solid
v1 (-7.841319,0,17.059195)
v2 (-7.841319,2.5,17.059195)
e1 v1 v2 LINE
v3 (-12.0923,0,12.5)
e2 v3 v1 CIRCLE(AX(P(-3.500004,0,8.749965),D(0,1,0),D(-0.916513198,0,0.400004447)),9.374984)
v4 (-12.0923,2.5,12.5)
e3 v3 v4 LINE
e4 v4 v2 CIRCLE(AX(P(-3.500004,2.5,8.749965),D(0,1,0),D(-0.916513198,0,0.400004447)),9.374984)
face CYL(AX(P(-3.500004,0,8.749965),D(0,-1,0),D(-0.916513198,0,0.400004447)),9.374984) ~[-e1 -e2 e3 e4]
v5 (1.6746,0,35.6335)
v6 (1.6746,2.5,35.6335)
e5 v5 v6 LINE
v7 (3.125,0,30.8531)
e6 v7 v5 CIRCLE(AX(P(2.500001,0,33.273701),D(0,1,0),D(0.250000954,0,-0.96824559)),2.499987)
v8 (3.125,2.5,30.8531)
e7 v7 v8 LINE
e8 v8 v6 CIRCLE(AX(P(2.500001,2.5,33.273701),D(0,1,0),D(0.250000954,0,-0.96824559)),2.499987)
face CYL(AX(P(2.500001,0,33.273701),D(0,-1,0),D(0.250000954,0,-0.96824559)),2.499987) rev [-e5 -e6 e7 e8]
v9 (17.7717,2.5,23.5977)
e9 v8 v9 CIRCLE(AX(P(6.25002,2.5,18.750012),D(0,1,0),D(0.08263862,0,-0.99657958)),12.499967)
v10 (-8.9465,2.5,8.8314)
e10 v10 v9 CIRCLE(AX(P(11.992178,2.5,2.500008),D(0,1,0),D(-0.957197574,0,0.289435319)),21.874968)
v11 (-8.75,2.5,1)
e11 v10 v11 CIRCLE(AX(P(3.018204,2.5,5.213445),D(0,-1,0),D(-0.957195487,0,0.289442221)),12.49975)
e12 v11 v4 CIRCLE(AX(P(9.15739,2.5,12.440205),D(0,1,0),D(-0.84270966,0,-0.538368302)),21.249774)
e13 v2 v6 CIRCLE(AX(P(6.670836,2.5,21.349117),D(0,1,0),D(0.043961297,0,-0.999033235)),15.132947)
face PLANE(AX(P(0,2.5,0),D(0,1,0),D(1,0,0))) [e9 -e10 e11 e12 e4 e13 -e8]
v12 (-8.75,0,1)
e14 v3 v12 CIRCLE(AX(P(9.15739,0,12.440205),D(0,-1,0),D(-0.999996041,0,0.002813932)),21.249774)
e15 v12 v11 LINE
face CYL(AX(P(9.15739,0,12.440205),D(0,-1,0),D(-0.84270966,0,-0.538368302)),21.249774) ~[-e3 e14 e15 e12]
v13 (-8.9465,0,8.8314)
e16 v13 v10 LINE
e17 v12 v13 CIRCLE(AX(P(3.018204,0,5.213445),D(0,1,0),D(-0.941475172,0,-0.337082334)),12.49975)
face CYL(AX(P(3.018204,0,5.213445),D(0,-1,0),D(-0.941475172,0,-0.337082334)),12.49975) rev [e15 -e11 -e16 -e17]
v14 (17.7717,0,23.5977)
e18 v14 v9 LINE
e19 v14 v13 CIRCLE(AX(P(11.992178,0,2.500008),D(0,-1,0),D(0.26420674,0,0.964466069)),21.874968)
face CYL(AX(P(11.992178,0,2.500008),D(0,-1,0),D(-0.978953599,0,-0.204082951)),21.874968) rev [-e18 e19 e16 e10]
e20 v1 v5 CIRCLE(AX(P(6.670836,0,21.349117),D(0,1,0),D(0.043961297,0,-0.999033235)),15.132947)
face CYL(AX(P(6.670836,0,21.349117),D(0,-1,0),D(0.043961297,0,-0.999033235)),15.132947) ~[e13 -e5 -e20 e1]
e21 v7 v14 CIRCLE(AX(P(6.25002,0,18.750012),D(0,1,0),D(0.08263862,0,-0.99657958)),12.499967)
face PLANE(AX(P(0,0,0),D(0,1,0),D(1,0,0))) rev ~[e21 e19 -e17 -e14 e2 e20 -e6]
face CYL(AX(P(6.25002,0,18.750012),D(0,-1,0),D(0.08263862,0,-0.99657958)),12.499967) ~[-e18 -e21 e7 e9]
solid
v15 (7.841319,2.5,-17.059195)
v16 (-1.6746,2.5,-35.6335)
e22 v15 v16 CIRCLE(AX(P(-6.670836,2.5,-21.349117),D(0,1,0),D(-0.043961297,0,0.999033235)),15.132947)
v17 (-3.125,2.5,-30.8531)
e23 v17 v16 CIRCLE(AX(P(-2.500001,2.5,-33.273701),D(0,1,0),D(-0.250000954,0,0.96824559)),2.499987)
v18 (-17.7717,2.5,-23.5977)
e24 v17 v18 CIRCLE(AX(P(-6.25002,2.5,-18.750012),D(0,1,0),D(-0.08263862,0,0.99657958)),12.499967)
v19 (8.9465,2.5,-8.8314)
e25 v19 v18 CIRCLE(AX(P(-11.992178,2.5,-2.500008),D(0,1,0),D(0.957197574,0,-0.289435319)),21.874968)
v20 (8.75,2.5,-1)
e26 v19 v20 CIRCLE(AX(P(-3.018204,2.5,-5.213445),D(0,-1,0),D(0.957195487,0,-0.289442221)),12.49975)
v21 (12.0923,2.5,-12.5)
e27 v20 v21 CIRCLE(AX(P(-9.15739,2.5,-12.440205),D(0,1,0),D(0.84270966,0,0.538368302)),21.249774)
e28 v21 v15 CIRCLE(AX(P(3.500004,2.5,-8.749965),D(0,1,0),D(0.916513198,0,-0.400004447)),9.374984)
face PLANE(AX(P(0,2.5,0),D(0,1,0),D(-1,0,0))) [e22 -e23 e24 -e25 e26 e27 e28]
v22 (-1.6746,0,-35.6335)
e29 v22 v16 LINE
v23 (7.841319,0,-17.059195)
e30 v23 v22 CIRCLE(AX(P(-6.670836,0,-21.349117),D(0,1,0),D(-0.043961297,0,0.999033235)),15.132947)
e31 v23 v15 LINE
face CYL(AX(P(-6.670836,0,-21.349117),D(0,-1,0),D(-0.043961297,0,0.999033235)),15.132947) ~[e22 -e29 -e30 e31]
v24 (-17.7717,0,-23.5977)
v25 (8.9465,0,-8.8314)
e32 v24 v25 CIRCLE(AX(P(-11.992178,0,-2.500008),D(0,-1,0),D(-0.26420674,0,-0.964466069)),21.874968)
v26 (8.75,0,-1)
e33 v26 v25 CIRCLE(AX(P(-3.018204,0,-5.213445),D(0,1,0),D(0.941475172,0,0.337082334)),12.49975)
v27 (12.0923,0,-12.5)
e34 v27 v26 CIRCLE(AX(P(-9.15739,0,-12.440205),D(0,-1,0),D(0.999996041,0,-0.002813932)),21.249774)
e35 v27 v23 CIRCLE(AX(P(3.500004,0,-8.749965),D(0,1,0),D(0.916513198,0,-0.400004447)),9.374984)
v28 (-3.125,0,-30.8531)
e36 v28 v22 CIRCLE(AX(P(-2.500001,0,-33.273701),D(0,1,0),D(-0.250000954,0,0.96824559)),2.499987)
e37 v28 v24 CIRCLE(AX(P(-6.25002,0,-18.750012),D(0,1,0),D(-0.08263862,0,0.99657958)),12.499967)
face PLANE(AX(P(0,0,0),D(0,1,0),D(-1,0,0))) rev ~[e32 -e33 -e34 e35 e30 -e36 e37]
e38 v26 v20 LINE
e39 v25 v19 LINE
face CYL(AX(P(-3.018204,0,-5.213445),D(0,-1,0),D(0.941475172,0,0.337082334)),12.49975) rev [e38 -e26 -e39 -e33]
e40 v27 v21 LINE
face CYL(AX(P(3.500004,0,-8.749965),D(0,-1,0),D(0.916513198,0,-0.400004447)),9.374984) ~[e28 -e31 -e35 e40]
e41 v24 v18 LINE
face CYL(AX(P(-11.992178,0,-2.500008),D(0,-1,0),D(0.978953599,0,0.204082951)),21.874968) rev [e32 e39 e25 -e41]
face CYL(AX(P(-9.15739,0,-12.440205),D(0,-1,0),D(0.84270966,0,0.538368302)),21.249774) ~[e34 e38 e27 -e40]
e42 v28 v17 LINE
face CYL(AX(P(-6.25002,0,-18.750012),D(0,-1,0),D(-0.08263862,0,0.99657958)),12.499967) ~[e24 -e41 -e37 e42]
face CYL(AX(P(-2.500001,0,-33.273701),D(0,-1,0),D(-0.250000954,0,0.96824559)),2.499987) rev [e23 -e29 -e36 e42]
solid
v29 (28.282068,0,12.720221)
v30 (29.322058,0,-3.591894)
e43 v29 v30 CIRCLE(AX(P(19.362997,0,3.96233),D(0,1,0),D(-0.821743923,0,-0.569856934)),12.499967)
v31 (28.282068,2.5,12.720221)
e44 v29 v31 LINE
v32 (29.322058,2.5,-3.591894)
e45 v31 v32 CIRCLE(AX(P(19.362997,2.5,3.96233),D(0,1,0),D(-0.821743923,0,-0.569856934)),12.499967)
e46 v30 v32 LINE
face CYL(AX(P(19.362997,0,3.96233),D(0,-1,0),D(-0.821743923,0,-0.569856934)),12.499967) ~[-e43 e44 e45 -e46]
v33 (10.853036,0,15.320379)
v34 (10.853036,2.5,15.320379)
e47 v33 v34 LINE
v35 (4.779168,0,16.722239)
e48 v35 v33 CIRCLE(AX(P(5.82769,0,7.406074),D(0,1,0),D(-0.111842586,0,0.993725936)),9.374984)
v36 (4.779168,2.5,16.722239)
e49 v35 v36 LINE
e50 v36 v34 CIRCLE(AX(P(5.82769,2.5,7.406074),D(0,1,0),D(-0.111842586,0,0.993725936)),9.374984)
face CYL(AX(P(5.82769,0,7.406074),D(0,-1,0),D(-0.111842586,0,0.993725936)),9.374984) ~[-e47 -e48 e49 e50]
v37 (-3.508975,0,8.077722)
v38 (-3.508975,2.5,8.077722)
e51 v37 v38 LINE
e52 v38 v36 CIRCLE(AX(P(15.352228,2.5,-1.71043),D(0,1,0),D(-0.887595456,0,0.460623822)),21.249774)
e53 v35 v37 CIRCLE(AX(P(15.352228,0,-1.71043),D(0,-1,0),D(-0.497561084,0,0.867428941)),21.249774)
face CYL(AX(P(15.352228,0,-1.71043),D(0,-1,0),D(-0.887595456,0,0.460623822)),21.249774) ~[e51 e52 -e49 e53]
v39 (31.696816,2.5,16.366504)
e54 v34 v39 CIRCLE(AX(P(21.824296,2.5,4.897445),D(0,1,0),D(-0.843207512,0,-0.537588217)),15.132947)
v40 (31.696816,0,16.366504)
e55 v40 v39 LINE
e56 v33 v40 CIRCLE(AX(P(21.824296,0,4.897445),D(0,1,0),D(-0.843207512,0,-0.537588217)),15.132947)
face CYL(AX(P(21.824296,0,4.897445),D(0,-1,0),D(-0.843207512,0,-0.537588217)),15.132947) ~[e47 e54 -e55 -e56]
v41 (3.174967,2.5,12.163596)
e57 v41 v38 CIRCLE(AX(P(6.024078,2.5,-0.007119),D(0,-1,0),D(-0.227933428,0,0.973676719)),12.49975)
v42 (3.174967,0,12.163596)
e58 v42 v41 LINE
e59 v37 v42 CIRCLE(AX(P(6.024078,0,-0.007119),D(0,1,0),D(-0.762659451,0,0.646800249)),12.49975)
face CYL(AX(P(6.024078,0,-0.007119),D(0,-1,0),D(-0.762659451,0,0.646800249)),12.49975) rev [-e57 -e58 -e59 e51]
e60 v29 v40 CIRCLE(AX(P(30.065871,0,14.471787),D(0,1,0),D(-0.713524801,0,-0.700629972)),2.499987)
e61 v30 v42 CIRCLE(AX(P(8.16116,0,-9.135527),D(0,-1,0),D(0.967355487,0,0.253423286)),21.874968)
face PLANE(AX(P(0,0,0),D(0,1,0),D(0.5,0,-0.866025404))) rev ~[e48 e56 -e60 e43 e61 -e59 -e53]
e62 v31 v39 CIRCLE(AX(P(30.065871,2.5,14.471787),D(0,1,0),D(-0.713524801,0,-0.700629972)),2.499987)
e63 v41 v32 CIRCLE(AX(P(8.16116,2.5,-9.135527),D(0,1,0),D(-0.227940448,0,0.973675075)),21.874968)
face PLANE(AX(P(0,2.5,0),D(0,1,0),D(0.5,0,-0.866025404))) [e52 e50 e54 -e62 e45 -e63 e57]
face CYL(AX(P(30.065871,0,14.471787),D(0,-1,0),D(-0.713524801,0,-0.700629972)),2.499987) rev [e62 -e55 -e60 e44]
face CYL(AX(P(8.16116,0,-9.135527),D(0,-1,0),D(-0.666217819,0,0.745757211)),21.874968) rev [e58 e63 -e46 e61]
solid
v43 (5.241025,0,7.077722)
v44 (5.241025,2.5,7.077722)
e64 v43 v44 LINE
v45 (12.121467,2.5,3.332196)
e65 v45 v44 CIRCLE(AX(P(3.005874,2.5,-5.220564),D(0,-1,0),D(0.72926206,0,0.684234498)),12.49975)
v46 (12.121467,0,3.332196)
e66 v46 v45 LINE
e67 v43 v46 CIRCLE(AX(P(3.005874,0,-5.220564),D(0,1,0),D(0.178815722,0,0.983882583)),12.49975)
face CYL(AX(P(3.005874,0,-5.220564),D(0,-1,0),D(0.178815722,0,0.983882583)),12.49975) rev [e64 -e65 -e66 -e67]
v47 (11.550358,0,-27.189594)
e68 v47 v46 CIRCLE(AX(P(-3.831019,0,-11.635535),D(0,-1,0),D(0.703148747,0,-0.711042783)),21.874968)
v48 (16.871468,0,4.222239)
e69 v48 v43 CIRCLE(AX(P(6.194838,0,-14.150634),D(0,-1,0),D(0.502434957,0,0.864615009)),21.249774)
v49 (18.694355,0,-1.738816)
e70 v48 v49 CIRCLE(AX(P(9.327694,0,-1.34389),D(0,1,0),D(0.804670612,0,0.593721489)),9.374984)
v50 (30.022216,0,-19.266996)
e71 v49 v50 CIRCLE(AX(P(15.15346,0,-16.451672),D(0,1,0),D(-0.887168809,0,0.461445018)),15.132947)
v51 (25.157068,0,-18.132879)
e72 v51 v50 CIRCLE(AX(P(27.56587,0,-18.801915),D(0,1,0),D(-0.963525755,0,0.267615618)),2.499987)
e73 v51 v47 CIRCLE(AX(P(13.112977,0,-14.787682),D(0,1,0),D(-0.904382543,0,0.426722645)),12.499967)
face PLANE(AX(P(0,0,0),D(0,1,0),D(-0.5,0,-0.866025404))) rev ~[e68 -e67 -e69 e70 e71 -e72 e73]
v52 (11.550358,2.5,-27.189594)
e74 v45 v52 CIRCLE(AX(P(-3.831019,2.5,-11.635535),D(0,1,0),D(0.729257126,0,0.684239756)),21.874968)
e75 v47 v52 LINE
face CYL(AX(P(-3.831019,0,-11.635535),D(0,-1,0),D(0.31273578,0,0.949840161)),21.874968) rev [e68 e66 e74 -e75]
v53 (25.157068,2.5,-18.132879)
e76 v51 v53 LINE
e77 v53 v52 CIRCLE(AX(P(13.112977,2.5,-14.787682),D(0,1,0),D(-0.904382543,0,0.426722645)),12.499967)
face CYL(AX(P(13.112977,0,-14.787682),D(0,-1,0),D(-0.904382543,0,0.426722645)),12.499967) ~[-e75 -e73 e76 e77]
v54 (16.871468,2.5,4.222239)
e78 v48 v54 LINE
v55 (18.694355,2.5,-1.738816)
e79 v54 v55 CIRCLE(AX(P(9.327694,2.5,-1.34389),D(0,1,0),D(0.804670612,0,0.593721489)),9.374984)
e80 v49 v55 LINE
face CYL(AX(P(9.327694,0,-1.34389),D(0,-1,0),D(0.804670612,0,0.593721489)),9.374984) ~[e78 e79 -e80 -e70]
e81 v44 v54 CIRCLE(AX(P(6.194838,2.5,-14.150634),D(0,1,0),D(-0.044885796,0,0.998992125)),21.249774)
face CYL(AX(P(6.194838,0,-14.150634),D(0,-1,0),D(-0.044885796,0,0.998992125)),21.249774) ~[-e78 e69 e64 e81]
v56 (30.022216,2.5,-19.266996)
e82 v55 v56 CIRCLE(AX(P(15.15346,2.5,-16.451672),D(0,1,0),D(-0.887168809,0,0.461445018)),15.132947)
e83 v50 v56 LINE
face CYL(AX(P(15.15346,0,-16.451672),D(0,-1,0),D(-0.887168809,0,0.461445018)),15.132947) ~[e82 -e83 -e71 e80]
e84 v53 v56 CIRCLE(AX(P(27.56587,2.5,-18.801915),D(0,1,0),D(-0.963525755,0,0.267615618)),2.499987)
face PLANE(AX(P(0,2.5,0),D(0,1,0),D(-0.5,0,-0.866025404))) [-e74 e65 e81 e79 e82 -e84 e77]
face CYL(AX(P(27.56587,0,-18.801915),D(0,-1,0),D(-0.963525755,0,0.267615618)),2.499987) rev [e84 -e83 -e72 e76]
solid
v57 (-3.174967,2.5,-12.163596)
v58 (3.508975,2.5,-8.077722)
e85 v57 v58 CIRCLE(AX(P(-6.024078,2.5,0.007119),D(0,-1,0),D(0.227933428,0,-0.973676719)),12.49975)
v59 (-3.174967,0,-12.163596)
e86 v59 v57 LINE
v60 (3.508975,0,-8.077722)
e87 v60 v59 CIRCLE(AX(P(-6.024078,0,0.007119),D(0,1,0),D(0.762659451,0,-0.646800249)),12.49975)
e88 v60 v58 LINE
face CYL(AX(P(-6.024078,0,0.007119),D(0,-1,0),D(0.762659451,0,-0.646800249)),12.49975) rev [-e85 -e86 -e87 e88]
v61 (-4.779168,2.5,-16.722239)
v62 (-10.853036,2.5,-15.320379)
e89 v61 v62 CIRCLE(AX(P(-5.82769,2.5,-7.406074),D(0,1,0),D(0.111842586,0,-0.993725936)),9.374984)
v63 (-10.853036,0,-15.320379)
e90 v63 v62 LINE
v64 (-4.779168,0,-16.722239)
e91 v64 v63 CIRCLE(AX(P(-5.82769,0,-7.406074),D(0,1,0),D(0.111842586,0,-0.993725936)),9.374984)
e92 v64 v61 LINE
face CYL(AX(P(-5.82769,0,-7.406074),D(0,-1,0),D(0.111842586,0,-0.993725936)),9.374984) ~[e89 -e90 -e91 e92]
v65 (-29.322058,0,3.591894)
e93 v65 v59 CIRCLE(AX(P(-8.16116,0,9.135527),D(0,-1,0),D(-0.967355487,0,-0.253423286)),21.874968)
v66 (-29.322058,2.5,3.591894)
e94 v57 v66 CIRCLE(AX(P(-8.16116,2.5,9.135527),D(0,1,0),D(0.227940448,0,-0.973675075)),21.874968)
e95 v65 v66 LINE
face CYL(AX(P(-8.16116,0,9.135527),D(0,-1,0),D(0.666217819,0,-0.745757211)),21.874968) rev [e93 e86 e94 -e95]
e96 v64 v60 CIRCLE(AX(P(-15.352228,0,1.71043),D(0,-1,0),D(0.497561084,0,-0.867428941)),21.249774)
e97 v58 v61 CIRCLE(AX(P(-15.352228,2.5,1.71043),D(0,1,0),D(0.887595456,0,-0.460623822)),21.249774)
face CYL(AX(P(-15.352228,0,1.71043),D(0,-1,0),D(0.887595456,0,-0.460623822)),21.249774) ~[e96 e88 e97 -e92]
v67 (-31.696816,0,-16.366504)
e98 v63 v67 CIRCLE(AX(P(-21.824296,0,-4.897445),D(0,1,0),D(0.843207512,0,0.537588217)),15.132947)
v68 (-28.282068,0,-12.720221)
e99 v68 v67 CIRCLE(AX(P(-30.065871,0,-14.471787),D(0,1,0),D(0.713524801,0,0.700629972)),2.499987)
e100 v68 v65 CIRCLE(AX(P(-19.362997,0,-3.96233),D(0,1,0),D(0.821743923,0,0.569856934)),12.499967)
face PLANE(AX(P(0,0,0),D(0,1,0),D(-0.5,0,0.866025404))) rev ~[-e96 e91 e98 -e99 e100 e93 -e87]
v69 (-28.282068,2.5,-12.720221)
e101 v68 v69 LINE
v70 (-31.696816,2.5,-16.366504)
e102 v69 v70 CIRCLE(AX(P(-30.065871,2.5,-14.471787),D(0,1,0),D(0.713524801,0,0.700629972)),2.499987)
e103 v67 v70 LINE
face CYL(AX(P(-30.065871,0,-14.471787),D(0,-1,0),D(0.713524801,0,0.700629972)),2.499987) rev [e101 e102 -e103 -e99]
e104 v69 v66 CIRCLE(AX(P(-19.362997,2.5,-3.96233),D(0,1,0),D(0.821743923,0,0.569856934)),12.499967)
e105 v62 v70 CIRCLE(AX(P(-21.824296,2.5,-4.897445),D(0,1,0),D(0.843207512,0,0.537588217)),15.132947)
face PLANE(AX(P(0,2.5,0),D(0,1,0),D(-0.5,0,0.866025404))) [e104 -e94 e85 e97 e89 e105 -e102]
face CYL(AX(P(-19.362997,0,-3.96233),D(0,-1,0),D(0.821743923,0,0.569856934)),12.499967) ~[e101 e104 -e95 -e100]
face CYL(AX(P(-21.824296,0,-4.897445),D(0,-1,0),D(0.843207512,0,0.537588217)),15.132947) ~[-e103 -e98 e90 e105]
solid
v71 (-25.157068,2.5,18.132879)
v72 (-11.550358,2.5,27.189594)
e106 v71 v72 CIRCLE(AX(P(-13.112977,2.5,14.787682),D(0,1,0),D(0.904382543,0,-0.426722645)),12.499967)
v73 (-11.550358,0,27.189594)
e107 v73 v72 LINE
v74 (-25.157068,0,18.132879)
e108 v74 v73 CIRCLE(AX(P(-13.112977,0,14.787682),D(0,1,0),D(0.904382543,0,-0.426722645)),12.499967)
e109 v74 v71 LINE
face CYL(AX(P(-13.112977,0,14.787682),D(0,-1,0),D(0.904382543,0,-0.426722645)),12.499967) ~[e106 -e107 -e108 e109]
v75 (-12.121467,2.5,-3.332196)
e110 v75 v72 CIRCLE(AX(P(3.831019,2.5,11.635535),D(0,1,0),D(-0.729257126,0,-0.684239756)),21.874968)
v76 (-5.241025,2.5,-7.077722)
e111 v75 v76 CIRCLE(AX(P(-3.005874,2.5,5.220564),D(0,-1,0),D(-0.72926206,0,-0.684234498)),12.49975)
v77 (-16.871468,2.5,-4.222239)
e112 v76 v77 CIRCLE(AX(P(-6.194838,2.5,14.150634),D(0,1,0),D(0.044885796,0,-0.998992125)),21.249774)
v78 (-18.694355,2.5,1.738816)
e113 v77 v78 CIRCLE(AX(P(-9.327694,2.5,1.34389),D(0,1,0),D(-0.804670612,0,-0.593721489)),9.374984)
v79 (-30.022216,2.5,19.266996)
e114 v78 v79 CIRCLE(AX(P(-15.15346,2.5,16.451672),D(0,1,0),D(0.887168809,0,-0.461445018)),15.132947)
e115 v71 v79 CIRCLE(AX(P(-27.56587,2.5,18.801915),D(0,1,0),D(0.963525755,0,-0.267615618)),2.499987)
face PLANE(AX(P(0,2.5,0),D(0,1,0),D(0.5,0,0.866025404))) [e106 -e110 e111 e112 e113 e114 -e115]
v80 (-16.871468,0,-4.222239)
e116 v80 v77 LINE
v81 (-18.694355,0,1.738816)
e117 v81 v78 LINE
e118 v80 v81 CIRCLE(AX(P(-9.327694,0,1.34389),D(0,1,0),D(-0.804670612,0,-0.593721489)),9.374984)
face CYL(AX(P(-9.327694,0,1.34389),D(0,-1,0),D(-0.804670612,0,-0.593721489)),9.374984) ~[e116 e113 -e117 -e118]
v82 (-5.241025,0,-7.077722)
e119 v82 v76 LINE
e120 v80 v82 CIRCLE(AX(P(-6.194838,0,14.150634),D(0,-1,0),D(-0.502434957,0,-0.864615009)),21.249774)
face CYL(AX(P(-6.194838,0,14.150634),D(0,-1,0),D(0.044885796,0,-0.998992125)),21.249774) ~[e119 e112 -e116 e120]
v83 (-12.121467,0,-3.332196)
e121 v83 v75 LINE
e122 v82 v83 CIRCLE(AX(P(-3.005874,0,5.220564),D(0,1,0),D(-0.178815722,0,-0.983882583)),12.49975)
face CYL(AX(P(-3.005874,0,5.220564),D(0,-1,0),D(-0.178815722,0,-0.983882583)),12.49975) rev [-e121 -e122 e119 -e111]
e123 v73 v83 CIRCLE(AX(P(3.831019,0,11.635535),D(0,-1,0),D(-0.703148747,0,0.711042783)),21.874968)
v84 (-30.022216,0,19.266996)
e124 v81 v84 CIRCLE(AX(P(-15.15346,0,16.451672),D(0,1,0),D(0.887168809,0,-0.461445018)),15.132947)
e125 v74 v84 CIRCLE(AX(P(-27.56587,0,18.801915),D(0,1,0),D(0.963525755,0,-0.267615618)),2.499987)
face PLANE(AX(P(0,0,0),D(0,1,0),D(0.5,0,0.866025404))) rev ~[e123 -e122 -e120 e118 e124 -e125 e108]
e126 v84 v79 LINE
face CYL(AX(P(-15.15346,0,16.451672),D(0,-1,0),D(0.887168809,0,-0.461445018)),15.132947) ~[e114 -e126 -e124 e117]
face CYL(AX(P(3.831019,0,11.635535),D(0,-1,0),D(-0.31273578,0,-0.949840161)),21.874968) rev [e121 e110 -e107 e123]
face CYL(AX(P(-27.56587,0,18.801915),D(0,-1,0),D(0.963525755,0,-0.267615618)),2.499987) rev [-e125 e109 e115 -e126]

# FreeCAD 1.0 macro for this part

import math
import FreeCAD as App
import Part
import Sketcher

doc = App.newDocument("Part")
body = doc.addObject("PartDesign::Body", "Body")
body.AllowCompound = True

sketch1 = body.newObject("Sketcher::SketchObject", "Sketch")
sketch1.AttachmentSupport = (doc.getObject("XZ_Plane"), [""])
sketch1.MapMode = "FlatFace"
sketch1.addGeometry(Part.ArcOfCircle(Part.Circle(App.Vector(-3, -5.2, 0), App.Vector(0, 0, 1), 12.5), math.radians(-17), math.radians(20)), False)
sketch1.addGeometry(Part.ArcOfCircle(Part.Circle(App.Vector(-9.2, -12.4, 0), App.Vector(0, 0, 1), 21.3), math.radians(0), math.radians(33)), False)
sketch1.addGeometry(Part.ArcOfCircle(Part.Circle(App.Vector(3.5, -8.8, 0), App.Vector(0, 0, 1), 9.4), math.radians(-62), math.radians(-24)), False)
sketch1.addGeometry(Part.ArcOfCircle(Part.Circle(App.Vector(-6.7, -21.3, 0), App.Vector(0, 0, 1), 15.1), math.radians(-71), math.radians(16)), False)
sketch1.addGeometry(Part.ArcOfCircle(Part.Circle(App.Vector(-2.5, -33.3, 0), App.Vector(0, 0, 1), 2.5), math.radians(-71), math.radians(104)), False)
sketch1.addGeometry(Part.ArcOfCircle(Part.Circle(App.Vector(-6.2, -18.8, 0), App.Vector(0, 0, 1), 12.5), math.radians(-157), math.radians(-76)), False)
sketch1.addGeometry(Part.ArcOfCircle(Part.Circle(App.Vector(-12, -2.5, 0), App.Vector(0, 0, 1), 21.9), math.radians(-105), math.radians(-17)), False)
sketch1.addConstraint(Sketcher.Constraint("Coincident", 0, 2, 1, 2))
sketch1.addConstraint(Sketcher.Constraint("Coincident", 1, 1, 2, 2))
sketch1.addConstraint(Sketcher.Constraint("Coincident", 2, 1, 3, 2))
sketch1.addConstraint(Sketcher.Constraint("Tangent", 3, 1, 4, 1))
sketch1.addConstraint(Sketcher.Constraint("Tangent", 4, 2, 5, 2))
sketch1.addConstraint(Sketcher.Constraint("Coincident", 5, 1, 6, 1))
sketch1.addConstraint(Sketcher.Constraint("Tangent", 6, 2, 0, 1))
sketch1.addConstraint(Sketcher.Constraint("Equal", 0, 5))
sketch1.addConstraint(Sketcher.Constraint("Radius", 0, 12.5))
sketch1.addConstraint(Sketcher.Constraint("Radius", 4, 2.5))
sketch1.addConstraint(Sketcher.Constraint("Radius", 1, 21.25))
sketch1.addConstraint(Sketcher.Constraint("DistanceY", 0, 2, -1, 1, 1.0))
sketch1.addConstraint(Sketcher.Constraint("Radius", 2, 9.375))
sketch1.addConstraint(Sketcher.Constraint("Radius", 6, 21.875))
sketch1.addConstraint(Sketcher.Constraint("DistanceX", -1, 1, 2, 3, 3.5))
sketch1.addConstraint(Sketcher.Constraint("DistanceX", 4, 3, -1, 1, 2.5))
sketch1.addConstraint(Sketcher.Constraint("DistanceY", 6, 3, -1, 1, 2.5))
sketch1.addConstraint(Sketcher.Constraint("DistanceY", 1, 1, -1, 1, 12.5))
sketch1.addConstraint(Sketcher.Constraint("DistanceY", 2, 3, -1, 1, 8.75))
sketch1.addConstraint(Sketcher.Constraint("DistanceX", 5, 3, -1, 1, 6.25))
sketch1.addConstraint(Sketcher.Constraint("DistanceY", 5, 3, -1, 1, 18.75))
sketch1.addConstraint(Sketcher.Constraint("DistanceX", -1, 1, 0, 2, 8.75))
sketch1.addConstraint(Sketcher.Constraint("Radius", 3, 15.133))
sketch1.addConstraint(Sketcher.Constraint("DistanceY", 3, 3, 2, 1, 4.29))
sketch1.addConstraint(Sketcher.Constraint("DistanceX", 1, 3, 0, 3, 6.139))
pad1 = body.newObject("PartDesign::Pad", "Pad")
pad1.Profile = sketch1
pad1.Length = 2.5
pad1.Reversed = True
doc.recompute()

polarpattern = body.newObject("PartDesign::PolarPattern", "PolarPattern")
polarpattern.Originals = [pad1]
polarpattern.Axis = (doc.getObject("Y_Axis"), [""])
polarpattern.Angle = 360
polarpattern.Occurrences = 6
body.Tip = polarpattern

doc.recompute()
